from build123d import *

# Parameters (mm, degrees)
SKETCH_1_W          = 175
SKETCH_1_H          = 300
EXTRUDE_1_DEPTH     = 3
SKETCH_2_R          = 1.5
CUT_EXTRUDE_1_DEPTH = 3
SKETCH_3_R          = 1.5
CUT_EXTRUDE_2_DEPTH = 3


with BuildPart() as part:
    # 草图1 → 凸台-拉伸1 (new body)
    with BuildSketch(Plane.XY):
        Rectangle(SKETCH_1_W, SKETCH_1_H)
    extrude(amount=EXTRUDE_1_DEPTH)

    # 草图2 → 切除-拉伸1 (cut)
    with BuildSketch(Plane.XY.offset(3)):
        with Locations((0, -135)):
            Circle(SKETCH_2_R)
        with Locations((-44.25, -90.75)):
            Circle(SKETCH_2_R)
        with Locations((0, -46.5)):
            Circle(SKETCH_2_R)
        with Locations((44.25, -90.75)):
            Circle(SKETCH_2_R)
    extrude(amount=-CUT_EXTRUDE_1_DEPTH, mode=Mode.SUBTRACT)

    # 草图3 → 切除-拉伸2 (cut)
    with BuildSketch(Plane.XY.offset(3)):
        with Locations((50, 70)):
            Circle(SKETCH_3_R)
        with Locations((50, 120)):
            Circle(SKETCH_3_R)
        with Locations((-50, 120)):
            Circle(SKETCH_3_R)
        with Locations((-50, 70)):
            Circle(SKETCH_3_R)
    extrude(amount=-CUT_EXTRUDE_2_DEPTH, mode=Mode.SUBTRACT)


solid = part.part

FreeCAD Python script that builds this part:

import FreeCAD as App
import Part
import Sketcher

V = App.Vector

doc = App.newDocument("Part")
body = doc.addObject("PartDesign::Body", "Body")

# Sketch on XY plane
sketch1 = body.newObject("Sketcher::SketchObject", "Sketch")
sketch1.AttachmentSupport = (doc.getObject("XY_Plane"), [""])
sketch1.MapMode = "FlatFace"
sketch1.addGeometry([
    Part.LineSegment(V(-88, 150, 0), V(-88, -150, 0)),
    Part.LineSegment(V(-88, -150, 0), V(88, -150, 0)),
    Part.LineSegment(V(88, -150, 0), V(88, 150, 0)),
    Part.LineSegment(V(88, 150, 0), V(-88, 150, 0)),
], False)
sketch1.addConstraint([
    Sketcher.Constraint("Coincident", 0, 2, 1, 1),
    Sketcher.Constraint("Coincident", 1, 2, 2, 1),
    Sketcher.Constraint("Coincident", 2, 2, 3, 1),
    Sketcher.Constraint("Coincident", 3, 2, 0, 1),
    Sketcher.Constraint("Vertical", 0),
    Sketcher.Constraint("Horizontal", 1),
    Sketcher.Constraint("Vertical", 2),
    Sketcher.Constraint("Horizontal", 3),
    Sketcher.Constraint("Symmetric", 0, 2, 2, 2, -1, 1),
    Sketcher.Constraint("DistanceX", 1, 1, 1, 2, 175.0),
    Sketcher.Constraint("DistanceY", 0, 2, 0, 1, 300.0),
])
pad1 = body.newObject("PartDesign::Pad", "Pad")
pad1.Profile = sketch1
pad1.Length = 3

# Sketch on XY plane
sketch2 = body.newObject("Sketcher::SketchObject", "Sketch001")
sketch2.AttachmentSupport = (doc.getObject("XY_Plane"), [""])
sketch2.MapMode = "FlatFace"
sketch2.AttachmentOffset = App.Placement(V(0, 0, 3), App.Rotation())
sketch2.addGeometry([
    Part.Circle(V(0, -135, 0), V(0, 0, 1), 1.5),
    Part.Circle(V(-44.2, -90.8, 0), V(0, 0, 1), 1.5),
    Part.Circle(V(0, -46.5, 0), V(0, 0, 1), 1.5),
    Part.Circle(V(44.2, -90.8, 0), V(0, 0, 1), 1.5),
], False)
sketch2.addConstraint([
    Sketcher.Constraint("Equal", 0, 1),
    Sketcher.Constraint("Equal", 1, 2),
    Sketcher.Constraint("Equal", 2, 3),
    Sketcher.Constraint("Symmetric", 1, 3, 3, 3, -2),
    Sketcher.Constraint("PointOnObject", 0, 3, -2),
    Sketcher.Constraint("PointOnObject", 2, 3, -2),
    Sketcher.Constraint("Diameter", 0, 3.0),
    Sketcher.Constraint("DistanceY", 0, 3, -1, 1, 135.0),
    Sketcher.Constraint("DistanceY", 2, 3, -1, 1, 46.5),
    Sketcher.Constraint("DistanceX", 1, 3, 3, 3, 88.5),
    Sketcher.Constraint("DistanceY", 1, 3, -1, 1, 90.75),
])
pocket1 = body.newObject("PartDesign::Pocket", "Pocket")
pocket1.Profile = sketch2
pocket1.Length = 3

# Sketch on XY plane
sketch3 = body.newObject("Sketcher::SketchObject", "Sketch002")
sketch3.AttachmentSupport = (doc.getObject("XY_Plane"), [""])
sketch3.MapMode = "FlatFace"
sketch3.AttachmentOffset = App.Placement(V(0, 0, 3), App.Rotation())
sketch3.addGeometry([
    Part.Circle(V(50, 70, 0), V(0, 0, 1), 1.5),
    Part.Circle(V(50, 120, 0), V(0, 0, 1), 1.5),
    Part.Circle(V(-50, 120, 0), V(0, 0, 1), 1.5),
    Part.Circle(V(-50, 70, 0), V(0, 0, 1), 1.5),
], False)
sketch3.addConstraint([
    Sketcher.Constraint("Equal", 0, 1),
    Sketcher.Constraint("Equal", 1, 2),
    Sketcher.Constraint("Equal", 2, 3),
    Sketcher.Constraint("Symmetric", 1, 3, 2, 3, -2),
    Sketcher.Constraint("Symmetric", 0, 3, 3, 3, -2),
    Sketcher.Constraint("Vertical", 0, 3, 1, 3),
    Sketcher.Constraint("Diameter", 0, 3.0),
    Sketcher.Constraint("DistanceX", -1, 1, 0, 3, 50.0),
    Sketcher.Constraint("DistanceY", -1, 1, 0, 3, 70.0),
    Sketcher.Constraint("DistanceY", -1, 1, 1, 3, 120.0),
])
pocket2 = body.newObject("PartDesign::Pocket", "Pocket001")
pocket2.Profile = sketch3
pocket2.Length = 3

doc.recompute()
